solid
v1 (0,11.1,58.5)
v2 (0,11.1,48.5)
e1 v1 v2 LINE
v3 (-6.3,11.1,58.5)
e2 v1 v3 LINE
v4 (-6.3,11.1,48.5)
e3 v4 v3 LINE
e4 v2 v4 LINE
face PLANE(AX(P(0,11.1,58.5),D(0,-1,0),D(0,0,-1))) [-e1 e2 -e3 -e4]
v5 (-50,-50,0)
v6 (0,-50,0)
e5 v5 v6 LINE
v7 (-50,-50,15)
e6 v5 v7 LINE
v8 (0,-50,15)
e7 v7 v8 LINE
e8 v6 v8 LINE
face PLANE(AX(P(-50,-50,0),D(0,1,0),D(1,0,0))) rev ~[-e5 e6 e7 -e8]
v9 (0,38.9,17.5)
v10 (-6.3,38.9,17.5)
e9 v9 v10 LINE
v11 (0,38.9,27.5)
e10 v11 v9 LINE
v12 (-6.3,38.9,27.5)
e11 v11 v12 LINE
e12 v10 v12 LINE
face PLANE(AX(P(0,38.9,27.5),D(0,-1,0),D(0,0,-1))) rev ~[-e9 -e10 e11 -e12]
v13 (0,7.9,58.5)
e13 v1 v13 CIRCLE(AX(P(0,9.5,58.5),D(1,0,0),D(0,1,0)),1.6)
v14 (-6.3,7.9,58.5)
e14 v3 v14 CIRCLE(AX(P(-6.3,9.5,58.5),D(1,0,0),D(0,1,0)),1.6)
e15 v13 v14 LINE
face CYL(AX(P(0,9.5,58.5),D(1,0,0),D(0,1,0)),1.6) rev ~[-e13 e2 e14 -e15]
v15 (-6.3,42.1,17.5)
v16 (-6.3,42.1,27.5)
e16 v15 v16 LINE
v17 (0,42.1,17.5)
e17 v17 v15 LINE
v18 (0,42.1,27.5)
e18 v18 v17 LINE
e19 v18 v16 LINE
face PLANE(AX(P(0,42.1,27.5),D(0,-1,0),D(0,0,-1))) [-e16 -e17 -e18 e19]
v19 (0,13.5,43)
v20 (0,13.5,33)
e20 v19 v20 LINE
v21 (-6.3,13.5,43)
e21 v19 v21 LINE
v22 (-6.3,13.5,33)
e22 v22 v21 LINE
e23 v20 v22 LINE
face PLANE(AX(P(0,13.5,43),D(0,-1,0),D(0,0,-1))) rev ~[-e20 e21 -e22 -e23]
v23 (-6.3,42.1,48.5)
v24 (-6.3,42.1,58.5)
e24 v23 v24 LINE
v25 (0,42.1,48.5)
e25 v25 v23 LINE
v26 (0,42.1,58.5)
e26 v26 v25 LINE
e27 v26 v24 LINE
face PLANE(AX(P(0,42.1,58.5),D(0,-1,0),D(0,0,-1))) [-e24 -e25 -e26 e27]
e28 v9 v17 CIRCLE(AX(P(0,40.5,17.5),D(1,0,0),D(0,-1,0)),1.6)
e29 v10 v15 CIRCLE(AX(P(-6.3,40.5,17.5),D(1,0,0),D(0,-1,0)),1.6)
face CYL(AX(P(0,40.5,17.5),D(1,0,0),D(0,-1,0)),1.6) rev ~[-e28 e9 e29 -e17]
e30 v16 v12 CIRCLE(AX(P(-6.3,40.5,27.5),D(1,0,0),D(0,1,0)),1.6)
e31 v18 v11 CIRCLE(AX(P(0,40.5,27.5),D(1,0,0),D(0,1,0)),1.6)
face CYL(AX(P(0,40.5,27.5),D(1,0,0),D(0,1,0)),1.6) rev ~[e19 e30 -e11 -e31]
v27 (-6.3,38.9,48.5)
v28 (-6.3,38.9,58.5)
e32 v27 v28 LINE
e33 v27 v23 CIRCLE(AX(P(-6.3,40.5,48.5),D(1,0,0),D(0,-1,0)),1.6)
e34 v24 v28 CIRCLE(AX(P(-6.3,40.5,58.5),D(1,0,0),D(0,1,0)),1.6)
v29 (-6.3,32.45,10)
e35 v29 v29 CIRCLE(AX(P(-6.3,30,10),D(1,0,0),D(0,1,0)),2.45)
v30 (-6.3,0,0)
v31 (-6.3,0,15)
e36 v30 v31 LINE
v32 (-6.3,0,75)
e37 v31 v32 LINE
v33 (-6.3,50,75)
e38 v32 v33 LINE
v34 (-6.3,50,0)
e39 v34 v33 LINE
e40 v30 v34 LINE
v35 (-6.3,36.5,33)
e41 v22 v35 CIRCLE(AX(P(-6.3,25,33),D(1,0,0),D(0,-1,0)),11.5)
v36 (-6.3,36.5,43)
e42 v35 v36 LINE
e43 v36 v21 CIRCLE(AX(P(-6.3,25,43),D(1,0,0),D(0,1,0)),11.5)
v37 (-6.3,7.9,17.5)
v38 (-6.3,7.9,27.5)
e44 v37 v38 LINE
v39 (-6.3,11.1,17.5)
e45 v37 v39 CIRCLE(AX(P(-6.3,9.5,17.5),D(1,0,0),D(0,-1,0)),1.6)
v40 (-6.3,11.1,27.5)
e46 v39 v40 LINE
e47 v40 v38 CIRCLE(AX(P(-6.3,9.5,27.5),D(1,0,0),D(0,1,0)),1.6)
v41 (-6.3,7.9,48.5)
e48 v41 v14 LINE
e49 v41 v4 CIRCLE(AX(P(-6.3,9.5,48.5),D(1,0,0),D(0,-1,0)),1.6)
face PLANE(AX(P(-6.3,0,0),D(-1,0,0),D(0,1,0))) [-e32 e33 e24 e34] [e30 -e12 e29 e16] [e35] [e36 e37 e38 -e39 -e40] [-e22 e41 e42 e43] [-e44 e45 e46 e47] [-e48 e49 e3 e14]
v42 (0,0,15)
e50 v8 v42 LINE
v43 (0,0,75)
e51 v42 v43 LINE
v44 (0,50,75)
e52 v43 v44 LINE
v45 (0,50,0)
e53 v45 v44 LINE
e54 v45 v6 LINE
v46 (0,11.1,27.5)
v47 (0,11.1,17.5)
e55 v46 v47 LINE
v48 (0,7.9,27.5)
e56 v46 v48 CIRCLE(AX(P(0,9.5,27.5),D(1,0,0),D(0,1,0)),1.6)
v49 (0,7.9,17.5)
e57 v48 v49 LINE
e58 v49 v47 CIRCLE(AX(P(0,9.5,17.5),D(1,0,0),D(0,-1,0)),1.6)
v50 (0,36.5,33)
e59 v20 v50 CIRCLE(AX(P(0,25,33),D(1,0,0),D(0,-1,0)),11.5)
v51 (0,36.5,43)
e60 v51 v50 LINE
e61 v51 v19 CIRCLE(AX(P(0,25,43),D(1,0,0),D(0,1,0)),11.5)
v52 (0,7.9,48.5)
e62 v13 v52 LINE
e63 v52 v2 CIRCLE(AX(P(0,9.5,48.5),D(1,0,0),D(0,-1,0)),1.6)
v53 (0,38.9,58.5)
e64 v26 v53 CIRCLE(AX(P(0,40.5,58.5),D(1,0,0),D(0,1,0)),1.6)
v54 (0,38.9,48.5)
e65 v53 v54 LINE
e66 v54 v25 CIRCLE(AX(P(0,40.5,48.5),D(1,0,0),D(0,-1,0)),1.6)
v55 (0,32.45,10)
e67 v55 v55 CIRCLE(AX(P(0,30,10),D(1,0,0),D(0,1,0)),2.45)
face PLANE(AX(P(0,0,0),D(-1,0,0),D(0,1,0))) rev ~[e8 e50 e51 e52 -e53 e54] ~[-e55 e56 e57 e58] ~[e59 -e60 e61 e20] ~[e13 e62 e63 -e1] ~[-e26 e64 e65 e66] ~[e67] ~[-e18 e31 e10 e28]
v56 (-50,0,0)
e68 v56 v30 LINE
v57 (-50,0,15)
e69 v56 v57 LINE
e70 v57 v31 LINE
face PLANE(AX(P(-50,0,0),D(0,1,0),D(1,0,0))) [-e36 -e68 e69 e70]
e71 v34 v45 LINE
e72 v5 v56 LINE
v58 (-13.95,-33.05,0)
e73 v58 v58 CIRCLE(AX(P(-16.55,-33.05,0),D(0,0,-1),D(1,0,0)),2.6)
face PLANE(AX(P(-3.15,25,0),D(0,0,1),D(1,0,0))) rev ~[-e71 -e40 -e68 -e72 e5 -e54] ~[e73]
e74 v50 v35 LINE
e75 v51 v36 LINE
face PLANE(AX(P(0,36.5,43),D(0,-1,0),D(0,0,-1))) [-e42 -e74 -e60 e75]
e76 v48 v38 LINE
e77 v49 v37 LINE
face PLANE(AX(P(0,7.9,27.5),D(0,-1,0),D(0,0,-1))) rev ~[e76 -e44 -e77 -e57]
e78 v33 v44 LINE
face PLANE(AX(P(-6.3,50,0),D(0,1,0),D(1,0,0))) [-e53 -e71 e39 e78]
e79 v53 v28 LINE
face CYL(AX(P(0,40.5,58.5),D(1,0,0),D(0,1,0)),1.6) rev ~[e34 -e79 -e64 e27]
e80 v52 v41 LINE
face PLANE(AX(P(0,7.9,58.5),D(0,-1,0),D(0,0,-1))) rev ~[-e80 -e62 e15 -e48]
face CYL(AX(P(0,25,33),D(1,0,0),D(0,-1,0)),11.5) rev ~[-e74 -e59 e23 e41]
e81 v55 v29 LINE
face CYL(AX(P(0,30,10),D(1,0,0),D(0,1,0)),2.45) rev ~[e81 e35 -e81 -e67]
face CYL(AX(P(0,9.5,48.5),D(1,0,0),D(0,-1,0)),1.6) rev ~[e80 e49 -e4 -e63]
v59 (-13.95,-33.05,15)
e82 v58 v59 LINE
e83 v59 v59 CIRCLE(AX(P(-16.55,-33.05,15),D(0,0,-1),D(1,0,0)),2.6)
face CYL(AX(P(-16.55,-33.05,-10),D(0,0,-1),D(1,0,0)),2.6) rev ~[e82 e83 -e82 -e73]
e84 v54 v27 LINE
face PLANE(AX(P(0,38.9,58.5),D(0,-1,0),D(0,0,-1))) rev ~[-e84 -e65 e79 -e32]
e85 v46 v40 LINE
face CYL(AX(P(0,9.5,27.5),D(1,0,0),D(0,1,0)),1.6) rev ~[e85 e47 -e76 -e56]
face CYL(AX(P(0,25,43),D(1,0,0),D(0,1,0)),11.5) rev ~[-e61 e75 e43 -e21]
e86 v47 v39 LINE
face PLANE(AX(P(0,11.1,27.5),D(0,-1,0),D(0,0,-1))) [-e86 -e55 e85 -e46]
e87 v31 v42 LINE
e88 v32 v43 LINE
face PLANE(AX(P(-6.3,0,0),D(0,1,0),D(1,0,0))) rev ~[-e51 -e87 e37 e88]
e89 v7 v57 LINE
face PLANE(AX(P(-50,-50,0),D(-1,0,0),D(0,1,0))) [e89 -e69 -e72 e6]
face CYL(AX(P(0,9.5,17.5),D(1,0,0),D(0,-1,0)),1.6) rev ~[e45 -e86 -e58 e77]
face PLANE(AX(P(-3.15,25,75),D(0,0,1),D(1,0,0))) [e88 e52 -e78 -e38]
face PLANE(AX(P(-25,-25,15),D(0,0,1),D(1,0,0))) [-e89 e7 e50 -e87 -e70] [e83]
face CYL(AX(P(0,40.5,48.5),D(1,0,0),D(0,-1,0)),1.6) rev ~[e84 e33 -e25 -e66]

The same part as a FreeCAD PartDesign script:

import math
import FreeCAD as App
import Part
import Sketcher
Q = App.Units.Quantity

doc = App.newDocument("Part")
body = doc.addObject("PartDesign::Body", "Body")

sketch1 = body.newObject("Sketcher::SketchObject", "Sketch")
sketch1.AttachmentSupport = (doc.getObject("XY_Plane"), [""])
sketch1.MapMode = "FlatFace"
sketch1.addGeometry([
    Part.LineSegment(App.Vector(-50, 0, 0), App.Vector(-50, -50, 0)),
    Part.LineSegment(App.Vector(-50, -50, 0), App.Vector(0, -50, 0)),
    Part.LineSegment(App.Vector(0, -50, 0), App.Vector(0, 0, 0)),
    Part.LineSegment(App.Vector(0, 0, 0), App.Vector(-50, 0, 0)),
], False)
sketch1.addConstraint([
    Sketcher.Constraint("Coincident", 0, 2, 1, 1),
    Sketcher.Constraint("Coincident", 1, 2, 2, 1),
    Sketcher.Constraint("Coincident", 2, 2, 3, 1),
    Sketcher.Constraint("Coincident", 3, 2, 0, 1),
    Sketcher.Constraint("Vertical", 0),
    Sketcher.Constraint("Horizontal", 1),
    Sketcher.Constraint("Vertical", 2),
    Sketcher.Constraint("Horizontal", 3),
    Sketcher.Constraint("Coincident", 2, 2, -1, 1),
    Sketcher.Constraint("Equal", 3, 0),
    Sketcher.Constraint("DistanceX", 1, 1, 1, 2, Q("50 mm")),
])
pad1 = body.newObject("PartDesign::Pad", "Pad")
pad1.Profile = sketch1
pad1.Length = 15

sketch2 = body.newObject("Sketcher::SketchObject", "Sketch001")
sketch2.AttachmentSupport = (doc.getObject("XY_Plane"), [""])
sketch2.MapMode = "FlatFace"
sketch2.addGeometry([
    Part.LineSegment(App.Vector(-6, 50, 0), App.Vector(-6, 0, 0)),
    Part.LineSegment(App.Vector(-6, 0, 0), App.Vector(0, 0, 0)),
    Part.LineSegment(App.Vector(0, 0, 0), App.Vector(0, 50, 0)),
    Part.LineSegment(App.Vector(0, 50, 0), App.Vector(-6, 50, 0)),
], False)
sketch2.addConstraint([
    Sketcher.Constraint("Coincident", 0, 2, 1, 1),
    Sketcher.Constraint("Coincident", 1, 2, 2, 1),
    Sketcher.Constraint("Coincident", 2, 2, 3, 1),
    Sketcher.Constraint("Coincident", 3, 2, 0, 1),
    Sketcher.Constraint("Vertical", 0),
    Sketcher.Constraint("Horizontal", 1),
    Sketcher.Constraint("Vertical", 2),
    Sketcher.Constraint("Horizontal", 3),
    Sketcher.Constraint("Coincident", 1, 2, -1, 1),
    Sketcher.Constraint("DistanceY", 0, 2, 0, 1, Q("50 mm")),
    Sketcher.Constraint("DistanceX", 1, 1, 1, 2, Q("6.3 mm")),
])
pad2 = body.newObject("PartDesign::Pad", "Pad001")
pad2.Profile = sketch2
pad2.Length = 75

sketch3 = body.newObject("Sketcher::SketchObject", "Sketch002")
sketch3.AttachmentSupport = (doc.getObject("YZ_Plane"), [""])
sketch3.MapMode = "FlatFace"
sketch3.addGeometry([
    Part.Circle(App.Vector(30, 10, 0), App.Vector(0, 0, 1), 2.5),
    Part.ArcOfCircle(Part.Circle(App.Vector(40.5, 58.5, 0), App.Vector(0, 0, 1), 1.6), math.radians(0), math.radians(180)),
    Part.LineSegment(App.Vector(38.9, 58.5, 0), App.Vector(38.9, 48.5, 0)),
    Part.ArcOfCircle(Part.Circle(App.Vector(40.5, 48.5, 0), App.Vector(0, 0, 1), 1.6), math.radians(180), math.radians(360)),
    Part.LineSegment(App.Vector(42.1, 48.5, 0), App.Vector(42.1, 58.5, 0)),
    Part.ArcOfCircle(Part.Circle(App.Vector(40.5, 27.5, 0), App.Vector(0, 0, 1), 1.6), math.radians(0), math.radians(180)),
    Part.LineSegment(App.Vector(38.9, 27.5, 0), App.Vector(38.9, 17.5, 0)),
    Part.ArcOfCircle(Part.Circle(App.Vector(40.5, 17.5, 0), App.Vector(0, 0, 1), 1.6), math.radians(180), math.radians(360)),
    Part.LineSegment(App.Vector(42.1, 17.5, 0), App.Vector(42.1, 27.5, 0)),
    Part.ArcOfCircle(Part.Circle(App.Vector(9.5, 58.5, 0), App.Vector(0, 0, 1), 1.6), math.radians(0), math.radians(180)),
    Part.LineSegment(App.Vector(7.9, 58.5, 0), App.Vector(7.9, 48.5, 0)),
    Part.ArcOfCircle(Part.Circle(App.Vector(9.5, 48.5, 0), App.Vector(0, 0, 1), 1.6), math.radians(180), math.radians(360)),
    Part.LineSegment(App.Vector(11.1, 48.5, 0), App.Vector(11.1, 58.5, 0)),
    Part.ArcOfCircle(Part.Circle(App.Vector(9.5, 27.5, 0), App.Vector(0, 0, 1), 1.6), math.radians(0), math.radians(180)),
    Part.LineSegment(App.Vector(7.9, 27.5, 0), App.Vector(7.9, 17.5, 0)),
    Part.ArcOfCircle(Part.Circle(App.Vector(9.5, 17.5, 0), App.Vector(0, 0, 1), 1.6), math.radians(180), math.radians(360)),
    Part.LineSegment(App.Vector(11.1, 17.5, 0), App.Vector(11.1, 27.5, 0)),
    Part.ArcOfCircle(Part.Circle(App.Vector(25, 43, 0), App.Vector(0, 0, 1), 11.5), math.radians(0), math.radians(180)),
    Part.LineSegment(App.Vector(13.5, 43, 0), App.Vector(13.5, 33, 0)),
    Part.ArcOfCircle(Part.Circle(App.Vector(25, 33, 0), App.Vector(0, 0, 1), 11.5), math.radians(180), math.radians(360)),
    Part.LineSegment(App.Vector(36.5, 33, 0), App.Vector(36.5, 43, 0)),
], False)
sketch3.addConstraint([
    Sketcher.Constraint("Tangent", 1, 2, 2, 1),
    Sketcher.Constraint("Tangent", 2, 2, 3, 1),
    Sketcher.Constraint("Tangent", 3, 2, 4, 1),
    Sketcher.Constraint("Tangent", 4, 2, 1, 1),
    Sketcher.Constraint("Tangent", 5, 2, 6, 1),
    Sketcher.Constraint("Tangent", 6, 2, 7, 1),
    Sketcher.Constraint("Tangent", 7, 2, 8, 1),
    Sketcher.Constraint("Tangent", 8, 2, 5, 1),
    Sketcher.Constraint("Tangent", 9, 2, 10, 1),
    Sketcher.Constraint("Tangent", 10, 2, 11, 1),
    Sketcher.Constraint("Tangent", 11, 2, 12, 1),
    Sketcher.Constraint("Tangent", 12, 2, 9, 1),
    Sketcher.Constraint("Tangent", 13, 2, 14, 1),
    Sketcher.Constraint("Tangent", 14, 2, 15, 1),
    Sketcher.Constraint("Tangent", 15, 2, 16, 1),
    Sketcher.Constraint("Tangent", 16, 2, 13, 1),
    Sketcher.Constraint("Tangent", 17, 2, 18, 1),
    Sketcher.Constraint("Tangent", 18, 2, 19, 1),
    Sketcher.Constraint("Tangent", 19, 2, 20, 1),
    Sketcher.Constraint("Tangent", 20, 2, 17, 1),
    Sketcher.Constraint("Vertical", 2),
    Sketcher.Constraint("Vertical", 4),
    Sketcher.Constraint("Vertical", 6),
    Sketcher.Constraint("Vertical", 8),
    Sketcher.Constraint("Vertical", 10),
    Sketcher.Constraint("Vertical", 12),
    Sketcher.Constraint("Vertical", 14),
    Sketcher.Constraint("Vertical", 16),
    Sketcher.Constraint("Vertical", 18),
    Sketcher.Constraint("Vertical", 20),
    Sketcher.Constraint("Equal", 3, 5),
    Sketcher.Constraint("Equal", 7, 9),
    Sketcher.Constraint("Equal", 11, 13),
    Sketcher.Constraint("Horizontal", 1, 3, 9, 3),
    Sketcher.Constraint("Horizontal", 3, 3, 11, 3),
    Sketcher.Constraint("Horizontal", 5, 3, 13, 3),
    Sketcher.Constraint("Horizontal", 7, 3, 15, 3),
    Sketcher.Constraint("Vertical", 3, 3, 5, 3),
    Sketcher.Constraint("Vertical", 11, 3, 13, 3),
    Sketcher.Constraint("Equal", 4, 6),
    Sketcher.Constraint("Equal", 16, 18),
    Sketcher.Constraint("Diameter", 0, Q("4.9 mm")),
    Sketcher.Constraint("Radius", 1, Q("1.6 mm")),
    Sketcher.Constraint("Radius", 17, Q("11.5 mm")),
    Sketcher.Constraint("DistanceY", 2, 2, 2, 1, Q("10 mm")),
    Sketcher.Constraint("DistanceX", -1, 1, 0, 3, Q("30 mm")),
    Sketcher.Constraint("DistanceY", -1, 1, 0, 3, Q("10 mm")),
    Sketcher.Constraint("DistanceX", -1, 1, 17, 3, Q("25 mm")),
    Sketcher.Constraint("DistanceY", -1, 1, 17, 3, Q("43 mm")),
    Sketcher.Constraint("DistanceY", 5, 3, 3, 3, Q("21 mm")),
    Sketcher.Constraint("DistanceX", 9, 3, 1, 3, Q("31 mm")),
    Sketcher.Constraint("DistanceX", 11, 3, 17, 2, Q("4 mm")),
    Sketcher.Constraint("DistanceY", -1, 1, 1, 3, Q("58.5 mm")),
])
pocket1 = body.newObject("PartDesign::Pocket", "Pocket")
pocket1.Profile = sketch3
pocket1.Length = 13

sketch4 = body.newObject("Sketcher::SketchObject", "Sketch003")
sketch4.AttachmentSupport = (doc.getObject("XY_Plane"), [""])
sketch4.MapMode = "FlatFace"
sketch4.AttachmentOffset = App.Placement(App.Vector(0, 0, -10), App.Rotation())
sketch4.addGeometry(Part.Circle(App.Vector(-16.6, -33, 0), App.Vector(0, 0, 1), 2.6), False)
sketch4.addConstraint([
    Sketcher.Constraint("Diameter", 0, Q("5.2 mm")),
    Sketcher.Constraint("DistanceX", 0, 3, -1, 1, Q("16.55 mm")),
    Sketcher.Constraint("DistanceY", 0, 3, -1, 1, Q("33.05 mm")),
])
pocket2 = body.newObject("PartDesign::Pocket", "Pocket001")
pocket2.Profile = sketch4
pocket2.Type = "ThroughAll"
pocket2.Reversed = True

doc.recompute()
